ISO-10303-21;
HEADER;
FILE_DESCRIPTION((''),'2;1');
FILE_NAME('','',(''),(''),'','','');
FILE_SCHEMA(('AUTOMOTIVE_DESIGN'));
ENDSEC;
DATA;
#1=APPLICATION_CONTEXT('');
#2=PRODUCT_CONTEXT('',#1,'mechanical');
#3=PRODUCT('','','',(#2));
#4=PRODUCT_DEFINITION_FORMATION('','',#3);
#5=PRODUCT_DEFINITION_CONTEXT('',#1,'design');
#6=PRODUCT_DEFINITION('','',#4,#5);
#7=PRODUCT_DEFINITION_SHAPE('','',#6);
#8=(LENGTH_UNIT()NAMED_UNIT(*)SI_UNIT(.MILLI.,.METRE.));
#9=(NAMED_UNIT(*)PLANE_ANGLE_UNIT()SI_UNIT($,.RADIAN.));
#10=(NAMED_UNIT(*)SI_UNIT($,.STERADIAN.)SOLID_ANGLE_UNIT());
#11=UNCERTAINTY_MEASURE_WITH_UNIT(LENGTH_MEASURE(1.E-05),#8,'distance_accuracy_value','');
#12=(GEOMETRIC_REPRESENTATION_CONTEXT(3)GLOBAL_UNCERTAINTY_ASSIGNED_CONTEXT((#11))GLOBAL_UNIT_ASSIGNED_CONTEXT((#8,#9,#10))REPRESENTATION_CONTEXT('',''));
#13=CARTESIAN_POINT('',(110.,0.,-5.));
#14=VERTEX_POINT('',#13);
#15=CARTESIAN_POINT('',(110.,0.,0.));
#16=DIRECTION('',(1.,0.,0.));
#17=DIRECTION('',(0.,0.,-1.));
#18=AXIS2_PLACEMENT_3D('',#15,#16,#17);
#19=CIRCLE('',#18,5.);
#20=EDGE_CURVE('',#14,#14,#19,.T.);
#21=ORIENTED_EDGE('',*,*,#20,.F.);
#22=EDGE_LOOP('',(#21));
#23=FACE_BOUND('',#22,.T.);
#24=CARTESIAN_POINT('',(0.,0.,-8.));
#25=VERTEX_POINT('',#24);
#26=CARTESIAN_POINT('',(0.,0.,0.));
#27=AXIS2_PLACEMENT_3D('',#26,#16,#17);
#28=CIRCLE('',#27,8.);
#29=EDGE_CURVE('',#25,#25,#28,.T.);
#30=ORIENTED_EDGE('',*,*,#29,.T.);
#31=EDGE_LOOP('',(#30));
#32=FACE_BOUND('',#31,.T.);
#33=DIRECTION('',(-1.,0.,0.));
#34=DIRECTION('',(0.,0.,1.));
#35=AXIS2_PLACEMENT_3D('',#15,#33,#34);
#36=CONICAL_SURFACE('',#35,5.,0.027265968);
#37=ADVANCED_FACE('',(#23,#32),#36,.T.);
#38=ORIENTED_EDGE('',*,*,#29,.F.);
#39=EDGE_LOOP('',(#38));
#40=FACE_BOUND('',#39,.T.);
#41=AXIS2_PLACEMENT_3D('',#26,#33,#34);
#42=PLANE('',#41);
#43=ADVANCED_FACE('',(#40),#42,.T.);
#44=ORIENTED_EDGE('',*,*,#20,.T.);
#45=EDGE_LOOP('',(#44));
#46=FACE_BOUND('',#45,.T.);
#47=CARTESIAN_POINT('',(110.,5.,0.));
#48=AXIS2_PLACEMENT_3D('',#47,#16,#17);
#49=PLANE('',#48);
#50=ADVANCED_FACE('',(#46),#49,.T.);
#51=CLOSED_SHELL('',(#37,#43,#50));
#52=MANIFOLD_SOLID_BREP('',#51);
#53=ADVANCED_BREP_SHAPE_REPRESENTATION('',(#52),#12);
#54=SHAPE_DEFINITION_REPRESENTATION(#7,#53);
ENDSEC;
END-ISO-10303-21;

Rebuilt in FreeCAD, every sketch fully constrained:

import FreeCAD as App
import Part
import Sketcher


def add_polygon(sketch, points):
    """Adds a closed chain of lines whose ends are joined by coincident constraints."""
    first, n = sketch.GeometryCount, len(points)
    for a, b in zip(points, points[1:] + points[:1]):
        sketch.addGeometry(Part.LineSegment(App.Vector(*a, 0), App.Vector(*b, 0)), False)
    for i in range(n):
        sketch.addConstraint(Sketcher.Constraint("Coincident", first + i, 2, first + (i + 1) % n, 1))

doc = App.newDocument("Part")
body = doc.addObject("PartDesign::Body", "Body")

sketch1 = body.newObject("Sketcher::SketchObject", "Sketch")
sketch1.AttachmentSupport = (doc.getObject("XY_Plane"), [""])
sketch1.MapMode = "FlatFace"
add_polygon(sketch1, [(0, 8), (0, 0), (110, 0), (110, 5)])
sketch1.addConstraint([
    Sketcher.Constraint("Vertical", 0),
    Sketcher.Constraint("Horizontal", 1),
    Sketcher.Constraint("Vertical", 2),
    Sketcher.Constraint("Coincident", 0, 2, -1, 1),
    Sketcher.Constraint("DistanceX", 1, 1, 1, 2, 110.0),
    Sketcher.Constraint("DistanceY", 0, 2, 0, 1, 8.0),
    Sketcher.Constraint("DistanceY", 2, 1, 2, 2, 5.0),
])
revolution = body.newObject("PartDesign::Revolution", "Revolution")
revolution.Profile = sketch1
revolution.ReferenceAxis = (sketch1, ["H_Axis"])
revolution.Angle = 360

doc.recompute()
